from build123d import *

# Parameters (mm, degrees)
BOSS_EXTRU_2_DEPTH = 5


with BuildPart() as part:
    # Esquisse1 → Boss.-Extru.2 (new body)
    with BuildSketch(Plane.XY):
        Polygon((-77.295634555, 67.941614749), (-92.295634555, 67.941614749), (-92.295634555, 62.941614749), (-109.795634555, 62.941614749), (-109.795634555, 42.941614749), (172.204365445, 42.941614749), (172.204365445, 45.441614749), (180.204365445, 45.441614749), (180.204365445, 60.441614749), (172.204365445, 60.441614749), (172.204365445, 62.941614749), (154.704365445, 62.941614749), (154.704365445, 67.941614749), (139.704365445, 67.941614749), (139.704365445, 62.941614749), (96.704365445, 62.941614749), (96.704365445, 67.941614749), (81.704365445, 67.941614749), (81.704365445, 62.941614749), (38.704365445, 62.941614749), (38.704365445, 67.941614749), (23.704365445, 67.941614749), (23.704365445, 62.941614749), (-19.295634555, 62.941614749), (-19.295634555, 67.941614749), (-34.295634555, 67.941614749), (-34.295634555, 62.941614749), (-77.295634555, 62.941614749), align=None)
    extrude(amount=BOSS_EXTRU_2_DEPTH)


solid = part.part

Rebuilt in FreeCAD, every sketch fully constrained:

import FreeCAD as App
import Part
import Sketcher
Q = App.Units.Quantity


def add_polygon(sketch, points):
    """Adds a closed chain of lines whose ends are joined by coincident constraints."""
    first, n = sketch.GeometryCount, len(points)
    for a, b in zip(points, points[1:] + points[:1]):
        sketch.addGeometry(Part.LineSegment(App.Vector(*a, 0), App.Vector(*b, 0)), False)
    for i in range(n):
        sketch.addConstraint(Sketcher.Constraint("Coincident", first + i, 2, first + (i + 1) % n, 1))

doc = App.newDocument("Part")
body = doc.addObject("PartDesign::Body", "Body")

sketch1 = doc.addObject("Sketcher::SketchObject", "Sketch")
body.addObject(sketch1)
sketch1.AttachmentSupport = (doc.XY_Plane, [""])
sketch1.MapMode = "FlatFace"
add_polygon(sketch1, [(-77.3, 67.9), (-92.3, 67.9), (-92.3, 62.9), (-109.8, 62.9), (-109.8, 42.9), (172.2, 42.9), (172.2, 45.4), (180.2, 45.4), (180.2, 60.4), (172.2, 60.4), (172.2, 62.9), (154.7, 62.9), (154.7, 67.9), (139.7, 67.9), (139.7, 62.9), (96.7, 62.9), (96.7, 67.9), (81.7, 67.9), (81.7, 62.9), (38.7, 62.9), (38.7, 67.9), (23.7, 67.9), (23.7, 62.9), (-19.3, 62.9), (-19.3, 67.9), (-34.3, 67.9), (-34.3, 62.9), (-77.3, 62.9)])
sketch1.addConstraint([
    Sketcher.Constraint("Horizontal", 0),
    Sketcher.Constraint("Vertical", 1),
    Sketcher.Constraint("Horizontal", 2),
    Sketcher.Constraint("Vertical", 3),
    Sketcher.Constraint("Horizontal", 4),
    Sketcher.Constraint("Vertical", 5),
    Sketcher.Constraint("Horizontal", 6),
    Sketcher.Constraint("Vertical", 7),
    Sketcher.Constraint("Horizontal", 8),
    Sketcher.Constraint("Vertical", 9),
    Sketcher.Constraint("Horizontal", 10),
    Sketcher.Constraint("Vertical", 11),
    Sketcher.Constraint("Horizontal", 12),
    Sketcher.Constraint("Vertical", 13),
    Sketcher.Constraint("Horizontal", 14),
    Sketcher.Constraint("Vertical", 15),
    Sketcher.Constraint("Horizontal", 16),
    Sketcher.Constraint("Vertical", 17),
    Sketcher.Constraint("Horizontal", 18),
    Sketcher.Constraint("Vertical", 19),
    Sketcher.Constraint("Horizontal", 20),
    Sketcher.Constraint("Vertical", 21),
    Sketcher.Constraint("Horizontal", 22),
    Sketcher.Constraint("Vertical", 23),
    Sketcher.Constraint("Horizontal", 24),
    Sketcher.Constraint("Vertical", 25),
    Sketcher.Constraint("Horizontal", 26),
    Sketcher.Constraint("Vertical", 27),
    Sketcher.Constraint("Horizontal", 2, 2, 9, 2),
    Sketcher.Constraint("Horizontal", 0, 2, 11, 2),
    Sketcher.Constraint("Horizontal", 10, 2, 13, 2),
    Sketcher.Constraint("Horizontal", 12, 2, 15, 2),
    Sketcher.Constraint("Horizontal", 14, 2, 17, 2),
    Sketcher.Constraint("Horizontal", 16, 2, 19, 2),
    Sketcher.Constraint("Horizontal", 18, 2, 21, 2),
    Sketcher.Constraint("Horizontal", 20, 2, 23, 2),
    Sketcher.Constraint("Horizontal", 22, 2, 25, 2),
    Sketcher.Constraint("Vertical", 5, 2, 8, 2),
    Sketcher.Constraint("Equal", 2, 10),
    Sketcher.Constraint("Equal", 0, 12),
    Sketcher.Constraint("Equal", 12, 16),
    Sketcher.Constraint("Equal", 14, 18),
    Sketcher.Constraint("Equal", 16, 20),
    Sketcher.Constraint("Equal", 18, 22),
    Sketcher.Constraint("Equal", 20, 24),
    Sketcher.Constraint("Equal", 22, 26),
    Sketcher.Constraint("Equal", 24, 7),
    Sketcher.Constraint("Equal", 5, 9),
    Sketcher.Constraint("DistanceX", 0, 2, 0, 1, Q("15 mm")),
    Sketcher.Constraint("DistanceX", 4, 1, 4, 2, Q("282 mm")),
    Sketcher.Constraint("DistanceX", 6, 1, 6, 2, Q("8 mm")),
    Sketcher.Constraint("DistanceX", 14, 2, 14, 1, Q("43 mm")),
    Sketcher.Constraint("DistanceY", 1, 2, 1, 1, Q("5 mm")),
    Sketcher.Constraint("DistanceY", 3, 2, 3, 1, Q("20 mm")),
    Sketcher.Constraint("DistanceX", 0, 2, -1, 1, Q("92.295635 mm")),
    Sketcher.Constraint("DistanceY", -1, 1, 0, 2, Q("67.941615 mm")),
])
pad1 = doc.addObject("PartDesign::Pad", "Pad")
body.addObject(pad1)
pad1.Profile = sketch1
pad1.Length = 5

doc.recompute()
